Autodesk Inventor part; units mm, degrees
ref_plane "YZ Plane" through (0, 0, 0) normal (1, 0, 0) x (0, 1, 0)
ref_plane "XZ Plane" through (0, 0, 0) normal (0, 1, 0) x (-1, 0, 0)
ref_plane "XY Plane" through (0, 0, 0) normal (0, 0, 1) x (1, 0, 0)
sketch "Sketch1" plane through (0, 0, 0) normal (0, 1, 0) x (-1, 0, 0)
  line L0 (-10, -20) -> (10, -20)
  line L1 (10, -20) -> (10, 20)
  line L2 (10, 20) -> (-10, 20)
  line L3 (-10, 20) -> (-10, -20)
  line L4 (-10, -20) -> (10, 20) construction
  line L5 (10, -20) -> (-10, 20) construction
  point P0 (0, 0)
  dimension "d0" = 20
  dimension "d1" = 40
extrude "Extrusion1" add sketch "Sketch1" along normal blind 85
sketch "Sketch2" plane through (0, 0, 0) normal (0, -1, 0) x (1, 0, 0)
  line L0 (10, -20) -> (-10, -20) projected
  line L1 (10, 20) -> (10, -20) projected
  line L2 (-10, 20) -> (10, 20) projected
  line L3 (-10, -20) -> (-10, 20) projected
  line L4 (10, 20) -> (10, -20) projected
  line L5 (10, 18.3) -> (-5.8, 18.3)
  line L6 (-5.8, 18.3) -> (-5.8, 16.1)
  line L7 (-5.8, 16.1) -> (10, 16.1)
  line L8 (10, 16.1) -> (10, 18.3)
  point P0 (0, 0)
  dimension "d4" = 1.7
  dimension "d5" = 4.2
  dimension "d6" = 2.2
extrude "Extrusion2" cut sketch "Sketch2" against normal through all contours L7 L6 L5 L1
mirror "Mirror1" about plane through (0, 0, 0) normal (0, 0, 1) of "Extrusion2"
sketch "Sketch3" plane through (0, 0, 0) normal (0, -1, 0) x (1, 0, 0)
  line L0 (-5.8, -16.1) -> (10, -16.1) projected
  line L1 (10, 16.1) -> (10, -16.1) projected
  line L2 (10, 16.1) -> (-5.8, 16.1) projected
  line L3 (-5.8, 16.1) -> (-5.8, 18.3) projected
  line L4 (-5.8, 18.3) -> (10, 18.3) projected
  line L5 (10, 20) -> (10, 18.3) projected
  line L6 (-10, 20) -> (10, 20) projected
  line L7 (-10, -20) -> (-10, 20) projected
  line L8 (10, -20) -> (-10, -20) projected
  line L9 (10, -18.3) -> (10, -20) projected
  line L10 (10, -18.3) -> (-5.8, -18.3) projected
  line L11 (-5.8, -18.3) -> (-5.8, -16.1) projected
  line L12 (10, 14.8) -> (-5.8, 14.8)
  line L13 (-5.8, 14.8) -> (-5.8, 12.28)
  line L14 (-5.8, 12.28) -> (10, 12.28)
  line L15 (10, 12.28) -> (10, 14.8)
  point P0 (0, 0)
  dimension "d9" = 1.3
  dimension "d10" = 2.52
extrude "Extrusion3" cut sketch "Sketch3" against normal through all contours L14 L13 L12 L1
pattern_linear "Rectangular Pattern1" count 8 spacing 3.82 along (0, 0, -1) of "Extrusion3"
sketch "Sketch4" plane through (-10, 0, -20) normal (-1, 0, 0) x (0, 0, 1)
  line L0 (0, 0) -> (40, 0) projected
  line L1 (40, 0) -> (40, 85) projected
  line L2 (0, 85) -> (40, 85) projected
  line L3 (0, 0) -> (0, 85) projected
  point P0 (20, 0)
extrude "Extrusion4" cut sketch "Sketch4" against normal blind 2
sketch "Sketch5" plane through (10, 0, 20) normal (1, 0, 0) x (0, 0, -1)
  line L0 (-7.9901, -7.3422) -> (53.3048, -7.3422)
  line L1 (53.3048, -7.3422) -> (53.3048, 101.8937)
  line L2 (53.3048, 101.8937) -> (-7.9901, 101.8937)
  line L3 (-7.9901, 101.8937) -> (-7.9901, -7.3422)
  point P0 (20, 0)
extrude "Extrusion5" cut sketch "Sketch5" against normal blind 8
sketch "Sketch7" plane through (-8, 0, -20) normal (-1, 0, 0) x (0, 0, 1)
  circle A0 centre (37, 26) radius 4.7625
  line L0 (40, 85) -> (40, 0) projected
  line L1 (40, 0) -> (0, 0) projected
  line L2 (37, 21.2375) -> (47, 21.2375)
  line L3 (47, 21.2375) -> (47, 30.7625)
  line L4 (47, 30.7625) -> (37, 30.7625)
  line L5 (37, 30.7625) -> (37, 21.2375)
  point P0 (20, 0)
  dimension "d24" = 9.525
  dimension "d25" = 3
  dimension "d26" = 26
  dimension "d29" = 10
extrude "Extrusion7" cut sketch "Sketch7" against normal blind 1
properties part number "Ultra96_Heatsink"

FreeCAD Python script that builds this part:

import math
import FreeCAD as App
import Part
import Sketcher
Q = App.Units.Quantity

doc = App.newDocument("Part")
body = doc.addObject("PartDesign::Body", "Body")

# Sketch on XZ plane
sketch1 = body.newObject("Sketcher::SketchObject", "Sketch")
sketch1.AttachmentSupport = (doc.getObject("XZ_Plane"), [""])
sketch1.MapMode = "FlatFace"
sketch1.addGeometry(Part.LineSegment(App.Vector(10, 20, 0), App.Vector(10, -20, 0)), False)
sketch1.addGeometry(Part.LineSegment(App.Vector(10, -20, 0), App.Vector(-10, -20, 0)), False)
sketch1.addGeometry(Part.LineSegment(App.Vector(-10, -20, 0), App.Vector(-10, 20, 0)), False)
sketch1.addGeometry(Part.LineSegment(App.Vector(-10, 20, 0), App.Vector(10, 20, 0)), False)
sketch1.addConstraint(Sketcher.Constraint("Coincident", 0, 2, 1, 1))
sketch1.addConstraint(Sketcher.Constraint("Coincident", 1, 2, 2, 1))
sketch1.addConstraint(Sketcher.Constraint("Coincident", 2, 2, 3, 1))
sketch1.addConstraint(Sketcher.Constraint("Coincident", 3, 2, 0, 1))
sketch1.addConstraint(Sketcher.Constraint("Vertical", 0))
sketch1.addConstraint(Sketcher.Constraint("Horizontal", 1))
sketch1.addConstraint(Sketcher.Constraint("Vertical", 2))
sketch1.addConstraint(Sketcher.Constraint("Horizontal", 3))
sketch1.addConstraint(Sketcher.Constraint("Symmetric", 0, 2, 2, 2, -1, 1))
sketch1.addConstraint(Sketcher.Constraint("DistanceX", 1, 2, 1, 1, Q("20 mm")))
sketch1.addConstraint(Sketcher.Constraint("DistanceY", 0, 2, 0, 1, Q("40 mm")))
pad1 = body.newObject("PartDesign::Pad", "Pad")
pad1.Profile = sketch1
pad1.Length = 85
pad1.Reversed = True

# Sketch on XZ plane
sketch2 = body.newObject("Sketcher::SketchObject", "Sketch001")
sketch2.AttachmentSupport = (doc.getObject("XZ_Plane"), [""])
sketch2.MapMode = "FlatFace"
sketch2.addGeometry(Part.LineSegment(App.Vector(-5.8, 16.1, 0), App.Vector(10, 16.1, 0)), False)
sketch2.addGeometry(Part.LineSegment(App.Vector(10, 16.1, 0), App.Vector(10, 18.3, 0)), False)
sketch2.addGeometry(Part.LineSegment(App.Vector(10, 18.3, 0), App.Vector(-5.8, 18.3, 0)), False)
sketch2.addGeometry(Part.LineSegment(App.Vector(-5.8, 18.3, 0), App.Vector(-5.8, 16.1, 0)), False)
sketch2.addConstraint(Sketcher.Constraint("Coincident", 0, 2, 1, 1))
sketch2.addConstraint(Sketcher.Constraint("Coincident", 1, 2, 2, 1))
sketch2.addConstraint(Sketcher.Constraint("Coincident", 2, 2, 3, 1))
sketch2.addConstraint(Sketcher.Constraint("Coincident", 3, 2, 0, 1))
sketch2.addConstraint(Sketcher.Constraint("Horizontal", 0))
sketch2.addConstraint(Sketcher.Constraint("Vertical", 1))
sketch2.addConstraint(Sketcher.Constraint("Horizontal", 2))
sketch2.addConstraint(Sketcher.Constraint("Vertical", 3))
sketch2.addConstraint(Sketcher.Constraint("DistanceY", 1, 1, 1, 2, Q("2.2 mm")))
sketch2.addConstraint(Sketcher.Constraint("DistanceX", 0, 1, 0, 2, Q("15.8 mm")))
sketch2.addConstraint(Sketcher.Constraint("DistanceX", -1, 1, 0, 2, Q("10 mm")))
sketch2.addConstraint(Sketcher.Constraint("DistanceY", -1, 1, 0, 2, Q("16.1 mm")))
pocket1 = body.newObject("PartDesign::Pocket", "Pocket")
pocket1.Profile = sketch2
pocket1.Type = "ThroughAll"
doc.recompute()

mirrored = body.newObject("PartDesign::Mirrored", "Mirrored")
mirrored.Originals = [pocket1]
mirrored.MirrorPlane = (doc.getObject("XY_Plane"), [""])
body.Tip = mirrored

# Sketch on XZ plane
sketch3 = body.newObject("Sketcher::SketchObject", "Sketch002")
sketch3.AttachmentSupport = (doc.getObject("XZ_Plane"), [""])
sketch3.MapMode = "FlatFace"
sketch3.addGeometry(Part.LineSegment(App.Vector(-5.8, 12.3, 0), App.Vector(10, 12.3, 0)), False)
sketch3.addGeometry(Part.LineSegment(App.Vector(10, 12.3, 0), App.Vector(10, 14.8, 0)), False)
sketch3.addGeometry(Part.LineSegment(App.Vector(10, 14.8, 0), App.Vector(-5.8, 14.8, 0)), False)
sketch3.addGeometry(Part.LineSegment(App.Vector(-5.8, 14.8, 0), App.Vector(-5.8, 12.3, 0)), False)
sketch3.addConstraint(Sketcher.Constraint("Coincident", 0, 2, 1, 1))
sketch3.addConstraint(Sketcher.Constraint("Coincident", 1, 2, 2, 1))
sketch3.addConstraint(Sketcher.Constraint("Coincident", 2, 2, 3, 1))
sketch3.addConstraint(Sketcher.Constraint("Coincident", 3, 2, 0, 1))
sketch3.addConstraint(Sketcher.Constraint("Horizontal", 0))
sketch3.addConstraint(Sketcher.Constraint("Vertical", 1))
sketch3.addConstraint(Sketcher.Constraint("Horizontal", 2))
sketch3.addConstraint(Sketcher.Constraint("Vertical", 3))
sketch3.addConstraint(Sketcher.Constraint("DistanceY", 1, 1, 1, 2, Q("2.52 mm")))
sketch3.addConstraint(Sketcher.Constraint("DistanceX", 0, 1, 0, 2, Q("15.8 mm")))
sketch3.addConstraint(Sketcher.Constraint("DistanceX", -1, 1, 0, 2, Q("10 mm")))
sketch3.addConstraint(Sketcher.Constraint("DistanceY", -1, 1, 1, 2, Q("14.8 mm")))
pocket2 = body.newObject("PartDesign::Pocket", "Pocket001")
pocket2.Profile = sketch3
pocket2.Type = "ThroughAll"
doc.recompute()

linearpattern = body.newObject("PartDesign::LinearPattern", "LinearPattern")
linearpattern.Originals = [pocket2]
linearpattern.Direction = (doc.getObject("Z_Axis"), [""])
linearpattern.Mode = "offset"
linearpattern.Offset = 3.82
linearpattern.Occurrences = 8
linearpattern.Reversed = True
body.Tip = linearpattern

# Sketch on YZ plane
sketch4 = body.newObject("Sketcher::SketchObject", "Sketch003")
sketch4.AttachmentSupport = (doc.getObject("YZ_Plane"), [""])
sketch4.MapMode = "FlatFace"
sketch4.AttachmentOffset = App.Placement(App.Vector(0, 0, -10), App.Rotation())
sketch4.addGeometry(Part.LineSegment(App.Vector(85, -20, 0), App.Vector(0, -20, 0)), False)
sketch4.addGeometry(Part.LineSegment(App.Vector(0, -20, 0), App.Vector(0, 20, 0)), False)
sketch4.addGeometry(Part.LineSegment(App.Vector(0, 20, 0), App.Vector(85, 20, 0)), False)
sketch4.addGeometry(Part.LineSegment(App.Vector(85, 20, 0), App.Vector(85, -20, 0)), False)
sketch4.addConstraint(Sketcher.Constraint("Coincident", 0, 2, 1, 1))
sketch4.addConstraint(Sketcher.Constraint("Coincident", 1, 2, 2, 1))
sketch4.addConstraint(Sketcher.Constraint("Coincident", 2, 2, 3, 1))
sketch4.addConstraint(Sketcher.Constraint("Coincident", 3, 2, 0, 1))
sketch4.addConstraint(Sketcher.Constraint("Horizontal", 0))
sketch4.addConstraint(Sketcher.Constraint("Vertical", 1))
sketch4.addConstraint(Sketcher.Constraint("Horizontal", 2))
sketch4.addConstraint(Sketcher.Constraint("Vertical", 3))
sketch4.addConstraint(Sketcher.Constraint("Symmetric", 0, 2, 1, 2, -1, 1))
sketch4.addConstraint(Sketcher.Constraint("DistanceX", 0, 2, 0, 1, Q("85 mm")))
sketch4.addConstraint(Sketcher.Constraint("DistanceY", 1, 1, 1, 2, Q("40 mm")))
pocket3 = body.newObject("PartDesign::Pocket", "Pocket002")
pocket3.Profile = sketch4
pocket3.Length = 2
pocket3.Reversed = True

# Sketch on YZ plane
sketch5 = body.newObject("Sketcher::SketchObject", "Sketch004")
sketch5.AttachmentSupport = (doc.getObject("YZ_Plane"), [""])
sketch5.MapMode = "FlatFace"
sketch5.AttachmentOffset = App.Placement(App.Vector(0, 0, 10), App.Rotation())
sketch5.addGeometry(Part.LineSegment(App.Vector(102, 28, 0), App.Vector(-7, 28, 0)), False)
sketch5.addGeometry(Part.LineSegment(App.Vector(-7, 28, 0), App.Vector(-7, -33, 0)), False)
sketch5.addGeometry(Part.LineSegment(App.Vector(-7, -33, 0), App.Vector(102, -33, 0)), False)
sketch5.addGeometry(Part.LineSegment(App.Vector(102, -33, 0), App.Vector(102, 28, 0)), False)
sketch5.addConstraint(Sketcher.Constraint("Coincident", 0, 2, 1, 1))
sketch5.addConstraint(Sketcher.Constraint("Coincident", 1, 2, 2, 1))
sketch5.addConstraint(Sketcher.Constraint("Coincident", 2, 2, 3, 1))
sketch5.addConstraint(Sketcher.Constraint("Coincident", 3, 2, 0, 1))
sketch5.addConstraint(Sketcher.Constraint("Horizontal", 0))
sketch5.addConstraint(Sketcher.Constraint("Vertical", 1))
sketch5.addConstraint(Sketcher.Constraint("Horizontal", 2))
sketch5.addConstraint(Sketcher.Constraint("Vertical", 3))
sketch5.addConstraint(Sketcher.Constraint("DistanceX", 0, 2, 0, 1, Q("109.236 mm")))
sketch5.addConstraint(Sketcher.Constraint("DistanceY", 1, 2, 1, 1, Q("61.295 mm")))
sketch5.addConstraint(Sketcher.Constraint("DistanceY", -1, 1, 0, 2, Q("27.99 mm")))
sketch5.addConstraint(Sketcher.Constraint("DistanceX", 0, 2, -1, 1, Q("7.3422 mm")))
pocket4 = body.newObject("PartDesign::Pocket", "Pocket003")
pocket4.Profile = sketch5
pocket4.Length = 8

# Sketch on YZ plane
sketch6 = body.newObject("Sketcher::SketchObject", "Sketch005")
sketch6.AttachmentSupport = (doc.getObject("YZ_Plane"), [""])
sketch6.MapMode = "FlatFace"
sketch6.AttachmentOffset = App.Placement(App.Vector(0, 0, -8), App.Rotation())
sketch6.addGeometry(Part.ArcOfCircle(Part.Circle(App.Vector(26, 17, 0), App.Vector(0, 0, 1), 4.8), math.radians(180), math.radians(360)), False)
sketch6.addGeometry(Part.LineSegment(App.Vector(21.2, 17, 0), App.Vector(21.2, 27, 0)), False)
sketch6.addGeometry(Part.LineSegment(App.Vector(21.2, 27, 0), App.Vector(30.8, 27, 0)), False)
sketch6.addGeometry(Part.LineSegment(App.Vector(30.8, 27, 0), App.Vector(30.8, 17, 0)), False)
sketch6.addConstraint(Sketcher.Constraint("Tangent", 0, 1, 1, 1))
sketch6.addConstraint(Sketcher.Constraint("Coincident", 1, 2, 2, 1))
sketch6.addConstraint(Sketcher.Constraint("Coincident", 2, 2, 3, 1))
sketch6.addConstraint(Sketcher.Constraint("Tangent", 3, 2, 0, 2))
sketch6.addConstraint(Sketcher.Constraint("Vertical", 1))
sketch6.addConstraint(Sketcher.Constraint("Horizontal", 2))
sketch6.addConstraint(Sketcher.Constraint("Vertical", 3))
sketch6.addConstraint(Sketcher.Constraint("DistanceY", 1, 1, 1, 2, Q("10 mm")))
sketch6.addConstraint(Sketcher.Constraint("DistanceX", -1, 1, 0, 3, Q("26 mm")))
sketch6.addConstraint(Sketcher.Constraint("Radius", 0, Q("4.7625 mm")))
sketch6.addConstraint(Sketcher.Constraint("DistanceY", -1, 1, 0, 3, Q("17 mm")))
pocket5 = body.newObject("PartDesign::Pocket", "Pocket004")
pocket5.Profile = sketch6
pocket5.Length = 1
pocket5.Reversed = True

doc.recompute()
